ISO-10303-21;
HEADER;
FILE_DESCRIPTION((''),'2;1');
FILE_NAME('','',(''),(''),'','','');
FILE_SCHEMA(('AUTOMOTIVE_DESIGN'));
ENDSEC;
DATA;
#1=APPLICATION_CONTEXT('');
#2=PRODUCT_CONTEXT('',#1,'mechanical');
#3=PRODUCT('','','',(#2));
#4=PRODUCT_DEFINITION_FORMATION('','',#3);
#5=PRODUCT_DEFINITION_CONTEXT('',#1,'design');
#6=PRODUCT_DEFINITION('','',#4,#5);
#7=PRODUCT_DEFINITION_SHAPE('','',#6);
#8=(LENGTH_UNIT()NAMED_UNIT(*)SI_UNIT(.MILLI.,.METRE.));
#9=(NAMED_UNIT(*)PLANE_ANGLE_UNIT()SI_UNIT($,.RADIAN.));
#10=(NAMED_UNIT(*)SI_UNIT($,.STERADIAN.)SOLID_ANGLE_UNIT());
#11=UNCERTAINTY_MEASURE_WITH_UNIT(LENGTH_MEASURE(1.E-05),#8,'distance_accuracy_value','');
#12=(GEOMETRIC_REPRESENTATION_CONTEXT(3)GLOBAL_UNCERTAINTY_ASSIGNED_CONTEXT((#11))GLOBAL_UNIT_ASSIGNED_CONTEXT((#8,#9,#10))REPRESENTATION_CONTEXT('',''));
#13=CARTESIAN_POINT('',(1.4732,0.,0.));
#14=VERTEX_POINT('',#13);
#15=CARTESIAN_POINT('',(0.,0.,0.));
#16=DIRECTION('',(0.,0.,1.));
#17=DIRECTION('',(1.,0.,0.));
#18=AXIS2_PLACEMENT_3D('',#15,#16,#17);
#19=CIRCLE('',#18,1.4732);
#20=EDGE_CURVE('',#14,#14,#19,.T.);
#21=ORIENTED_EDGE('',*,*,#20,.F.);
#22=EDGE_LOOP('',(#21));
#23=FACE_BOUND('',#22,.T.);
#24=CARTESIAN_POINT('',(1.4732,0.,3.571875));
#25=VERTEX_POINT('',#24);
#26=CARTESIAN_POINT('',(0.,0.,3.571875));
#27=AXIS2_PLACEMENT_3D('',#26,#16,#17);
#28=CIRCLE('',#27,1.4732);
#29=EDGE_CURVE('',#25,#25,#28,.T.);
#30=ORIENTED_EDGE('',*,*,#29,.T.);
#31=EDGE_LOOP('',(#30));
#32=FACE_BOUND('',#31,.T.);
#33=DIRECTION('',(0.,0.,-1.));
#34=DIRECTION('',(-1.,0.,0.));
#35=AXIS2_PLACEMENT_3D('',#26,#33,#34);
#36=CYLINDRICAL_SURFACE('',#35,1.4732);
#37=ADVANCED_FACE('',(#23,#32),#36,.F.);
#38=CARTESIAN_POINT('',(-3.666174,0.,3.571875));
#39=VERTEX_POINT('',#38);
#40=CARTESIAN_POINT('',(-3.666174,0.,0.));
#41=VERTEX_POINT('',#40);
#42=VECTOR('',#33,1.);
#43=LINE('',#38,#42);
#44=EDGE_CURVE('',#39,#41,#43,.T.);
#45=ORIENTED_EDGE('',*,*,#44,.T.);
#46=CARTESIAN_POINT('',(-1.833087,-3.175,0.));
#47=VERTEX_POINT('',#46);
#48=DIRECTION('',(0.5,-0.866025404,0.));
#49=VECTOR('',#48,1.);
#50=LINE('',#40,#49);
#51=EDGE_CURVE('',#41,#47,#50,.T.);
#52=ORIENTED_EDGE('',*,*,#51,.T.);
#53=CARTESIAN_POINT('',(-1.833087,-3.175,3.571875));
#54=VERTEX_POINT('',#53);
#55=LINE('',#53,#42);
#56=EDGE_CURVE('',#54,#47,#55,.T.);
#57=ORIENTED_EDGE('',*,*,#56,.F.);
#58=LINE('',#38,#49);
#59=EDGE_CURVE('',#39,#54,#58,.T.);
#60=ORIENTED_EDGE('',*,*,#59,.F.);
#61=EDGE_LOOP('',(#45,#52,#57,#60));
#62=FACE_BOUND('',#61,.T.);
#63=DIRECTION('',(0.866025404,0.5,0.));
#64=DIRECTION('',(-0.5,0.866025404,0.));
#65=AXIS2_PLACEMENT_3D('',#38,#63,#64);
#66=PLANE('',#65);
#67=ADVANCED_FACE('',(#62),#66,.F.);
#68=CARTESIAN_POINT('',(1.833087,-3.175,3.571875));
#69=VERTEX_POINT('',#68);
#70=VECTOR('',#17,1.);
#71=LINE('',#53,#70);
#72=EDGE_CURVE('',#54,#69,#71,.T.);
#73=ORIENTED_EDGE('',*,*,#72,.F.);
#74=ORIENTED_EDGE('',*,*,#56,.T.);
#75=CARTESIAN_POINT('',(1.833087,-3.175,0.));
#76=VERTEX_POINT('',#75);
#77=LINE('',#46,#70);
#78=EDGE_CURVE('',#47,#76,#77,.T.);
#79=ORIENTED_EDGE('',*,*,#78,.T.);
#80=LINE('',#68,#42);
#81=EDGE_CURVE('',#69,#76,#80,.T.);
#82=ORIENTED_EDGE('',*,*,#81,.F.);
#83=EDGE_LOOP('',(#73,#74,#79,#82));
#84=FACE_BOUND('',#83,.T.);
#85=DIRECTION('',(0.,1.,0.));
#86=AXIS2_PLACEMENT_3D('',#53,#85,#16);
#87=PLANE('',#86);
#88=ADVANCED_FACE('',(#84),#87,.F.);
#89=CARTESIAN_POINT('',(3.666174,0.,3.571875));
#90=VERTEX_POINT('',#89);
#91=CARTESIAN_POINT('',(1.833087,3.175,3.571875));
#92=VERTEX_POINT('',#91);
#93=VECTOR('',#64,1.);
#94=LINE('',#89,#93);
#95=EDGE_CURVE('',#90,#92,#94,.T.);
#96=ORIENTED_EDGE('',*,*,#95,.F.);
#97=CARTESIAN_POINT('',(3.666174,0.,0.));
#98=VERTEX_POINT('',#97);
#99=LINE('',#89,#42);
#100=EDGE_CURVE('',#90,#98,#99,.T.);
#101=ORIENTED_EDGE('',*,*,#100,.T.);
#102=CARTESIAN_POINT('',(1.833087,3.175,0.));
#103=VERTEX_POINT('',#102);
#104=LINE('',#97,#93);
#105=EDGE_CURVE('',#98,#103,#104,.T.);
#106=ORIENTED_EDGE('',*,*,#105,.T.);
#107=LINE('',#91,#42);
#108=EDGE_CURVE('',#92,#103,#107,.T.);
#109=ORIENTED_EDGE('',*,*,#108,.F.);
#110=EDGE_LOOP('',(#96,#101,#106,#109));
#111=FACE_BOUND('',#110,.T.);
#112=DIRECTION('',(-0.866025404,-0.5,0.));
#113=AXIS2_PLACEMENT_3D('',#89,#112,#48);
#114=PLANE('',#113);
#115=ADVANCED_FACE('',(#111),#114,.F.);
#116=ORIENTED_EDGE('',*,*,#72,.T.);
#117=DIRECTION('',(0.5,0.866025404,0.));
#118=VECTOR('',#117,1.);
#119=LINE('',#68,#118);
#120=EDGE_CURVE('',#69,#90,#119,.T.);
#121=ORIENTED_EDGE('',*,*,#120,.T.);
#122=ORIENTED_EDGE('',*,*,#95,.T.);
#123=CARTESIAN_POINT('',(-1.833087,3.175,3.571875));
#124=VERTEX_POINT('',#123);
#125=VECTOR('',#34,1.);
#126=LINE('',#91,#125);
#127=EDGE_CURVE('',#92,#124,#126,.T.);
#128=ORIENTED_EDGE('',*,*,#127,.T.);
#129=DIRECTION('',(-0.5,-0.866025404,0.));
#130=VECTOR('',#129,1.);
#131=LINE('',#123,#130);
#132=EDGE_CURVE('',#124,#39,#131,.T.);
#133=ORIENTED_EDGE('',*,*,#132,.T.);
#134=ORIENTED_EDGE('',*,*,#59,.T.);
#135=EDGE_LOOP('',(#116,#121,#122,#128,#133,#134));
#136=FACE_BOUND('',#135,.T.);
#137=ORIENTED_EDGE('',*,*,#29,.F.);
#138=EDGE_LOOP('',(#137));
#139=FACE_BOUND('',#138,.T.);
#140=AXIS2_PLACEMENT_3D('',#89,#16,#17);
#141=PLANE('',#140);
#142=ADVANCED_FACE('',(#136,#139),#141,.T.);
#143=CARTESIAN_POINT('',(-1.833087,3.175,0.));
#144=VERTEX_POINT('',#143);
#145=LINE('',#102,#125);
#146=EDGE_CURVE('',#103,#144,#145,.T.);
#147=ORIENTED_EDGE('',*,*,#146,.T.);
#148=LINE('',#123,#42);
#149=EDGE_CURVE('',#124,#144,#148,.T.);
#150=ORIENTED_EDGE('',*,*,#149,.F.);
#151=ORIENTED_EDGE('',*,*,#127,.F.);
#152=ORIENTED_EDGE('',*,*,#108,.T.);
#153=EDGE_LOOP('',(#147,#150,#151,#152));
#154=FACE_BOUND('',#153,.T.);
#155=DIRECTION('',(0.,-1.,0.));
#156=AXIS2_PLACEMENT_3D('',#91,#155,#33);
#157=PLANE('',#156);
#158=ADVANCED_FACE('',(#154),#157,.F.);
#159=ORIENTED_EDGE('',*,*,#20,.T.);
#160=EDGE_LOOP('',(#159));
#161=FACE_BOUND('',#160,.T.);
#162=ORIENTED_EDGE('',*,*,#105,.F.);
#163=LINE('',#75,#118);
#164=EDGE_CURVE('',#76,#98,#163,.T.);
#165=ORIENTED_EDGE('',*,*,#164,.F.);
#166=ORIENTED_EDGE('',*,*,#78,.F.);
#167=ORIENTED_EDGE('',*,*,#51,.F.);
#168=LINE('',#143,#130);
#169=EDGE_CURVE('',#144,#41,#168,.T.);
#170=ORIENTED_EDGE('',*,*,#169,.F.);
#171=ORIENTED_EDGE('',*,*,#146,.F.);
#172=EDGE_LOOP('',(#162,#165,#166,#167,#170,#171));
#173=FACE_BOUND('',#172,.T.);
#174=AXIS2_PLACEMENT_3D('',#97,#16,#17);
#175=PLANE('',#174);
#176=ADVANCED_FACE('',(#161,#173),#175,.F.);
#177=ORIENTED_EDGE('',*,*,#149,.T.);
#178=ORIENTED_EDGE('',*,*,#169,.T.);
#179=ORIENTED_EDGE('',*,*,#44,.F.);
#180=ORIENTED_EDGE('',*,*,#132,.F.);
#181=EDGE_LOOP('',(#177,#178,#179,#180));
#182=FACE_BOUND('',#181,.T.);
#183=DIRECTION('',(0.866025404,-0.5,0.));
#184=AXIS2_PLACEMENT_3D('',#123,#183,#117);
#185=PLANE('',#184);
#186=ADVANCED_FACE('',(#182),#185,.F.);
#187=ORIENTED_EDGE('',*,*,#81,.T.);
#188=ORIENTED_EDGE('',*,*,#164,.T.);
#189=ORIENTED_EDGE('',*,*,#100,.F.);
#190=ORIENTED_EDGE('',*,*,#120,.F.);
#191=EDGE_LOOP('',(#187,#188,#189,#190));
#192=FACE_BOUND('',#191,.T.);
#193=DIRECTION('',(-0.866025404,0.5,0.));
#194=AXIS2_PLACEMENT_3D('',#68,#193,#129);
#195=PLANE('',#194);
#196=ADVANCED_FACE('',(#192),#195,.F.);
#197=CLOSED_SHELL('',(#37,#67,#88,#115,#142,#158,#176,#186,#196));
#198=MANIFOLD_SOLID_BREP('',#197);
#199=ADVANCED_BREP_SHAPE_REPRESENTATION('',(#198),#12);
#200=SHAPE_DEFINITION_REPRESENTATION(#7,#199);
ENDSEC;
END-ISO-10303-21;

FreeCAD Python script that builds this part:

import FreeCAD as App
import Part
import Sketcher

V = App.Vector
Q = App.Units.Quantity

doc = App.newDocument("Part")
params = doc.addObject("Spreadsheet::Sheet", "Params")
for row, (alias, value) in enumerate([
    ("sketch1_diameter", "0.116 in"),
    ("pad1_length", "0.140625 in"),
], start=1):
    params.set(f"A{row}", alias)
    params.set(f"B{row}", "=" + value)
    params.setAlias(f"B{row}", alias)

body = doc.addObject("PartDesign::Body", "Body")

sketch1 = body.newObject("Sketcher::SketchObject", "Sketch")
sketch1.AttachmentSupport = (doc.getObject("XY_Plane"), [""])
sketch1.MapMode = "FlatFace"
sketch1.addGeometry(Part.LineSegment(V(3.7, 0, 0), V(1.8, 3.2, 0)), False)
sketch1.addGeometry(Part.LineSegment(V(1.8, 3.2, 0), V(-1.8, 3.2, 0)), False)
sketch1.addGeometry(Part.LineSegment(V(-1.8, 3.2, 0), V(-3.7, 0, 0)), False)
sketch1.addGeometry(Part.LineSegment(V(-3.7, 0, 0), V(-1.8, -3.2, 0)), False)
sketch1.addGeometry(Part.LineSegment(V(-1.8, -3.2, 0), V(1.8, -3.2, 0)), False)
sketch1.addGeometry(Part.LineSegment(V(1.8, -3.2, 0), V(3.7, 0, 0)), False)
sketch1.addGeometry(Part.Circle(V(0, 0, 0), V(0, 0, 1), 1.5), False)
sketch1.addConstraint(Sketcher.Constraint("Coincident", 0, 2, 1, 1))
sketch1.addConstraint(Sketcher.Constraint("Coincident", 1, 2, 2, 1))
sketch1.addConstraint(Sketcher.Constraint("Coincident", 2, 2, 3, 1))
sketch1.addConstraint(Sketcher.Constraint("Coincident", 3, 2, 4, 1))
sketch1.addConstraint(Sketcher.Constraint("Coincident", 4, 2, 5, 1))
sketch1.addConstraint(Sketcher.Constraint("Coincident", 5, 2, 0, 1))
sketch1.addConstraint(Sketcher.Constraint("Horizontal", 1))
sketch1.addConstraint(Sketcher.Constraint("Horizontal", 4))
sketch1.addConstraint(Sketcher.Constraint("Coincident", 6, 3, -1, 1))
sketch1.addConstraint(Sketcher.Constraint("Symmetric", 0, 2, 3, 2, -1, 1))
sketch1.addConstraint(Sketcher.Constraint("Symmetric", 2, 2, 5, 2, -1, 1))
sketch1.addConstraint(Sketcher.Constraint("PointOnObject", 2, 2, -1))
sketch1.addConstraint(Sketcher.Constraint("Parallel", 2, 5))
sketch1.addConstraint(Sketcher.Constraint("Vertical", 1, 2, 3, 2))
sketch1.addConstraint(Sketcher.Constraint("Diameter", 6, Q("0.116 in")))
sketch1.addConstraint(Sketcher.Constraint("Angle", 0, Q("120 deg")))
sketch1.addConstraint(Sketcher.Constraint("DistanceY", 3, 2, 1, 2, Q("0.25 in")))
sketch1.addConstraint(Sketcher.Constraint("DistanceX", 1, 2, 1, 1, Q("3.666174 mm")))
sketch1.setExpression("Constraints[14]", "Params.sketch1_diameter")
pad1 = body.newObject("PartDesign::Pad", "Pad")
pad1.Profile = sketch1
pad1.setExpression("Length", "Params.pad1_length")

doc.recompute()
